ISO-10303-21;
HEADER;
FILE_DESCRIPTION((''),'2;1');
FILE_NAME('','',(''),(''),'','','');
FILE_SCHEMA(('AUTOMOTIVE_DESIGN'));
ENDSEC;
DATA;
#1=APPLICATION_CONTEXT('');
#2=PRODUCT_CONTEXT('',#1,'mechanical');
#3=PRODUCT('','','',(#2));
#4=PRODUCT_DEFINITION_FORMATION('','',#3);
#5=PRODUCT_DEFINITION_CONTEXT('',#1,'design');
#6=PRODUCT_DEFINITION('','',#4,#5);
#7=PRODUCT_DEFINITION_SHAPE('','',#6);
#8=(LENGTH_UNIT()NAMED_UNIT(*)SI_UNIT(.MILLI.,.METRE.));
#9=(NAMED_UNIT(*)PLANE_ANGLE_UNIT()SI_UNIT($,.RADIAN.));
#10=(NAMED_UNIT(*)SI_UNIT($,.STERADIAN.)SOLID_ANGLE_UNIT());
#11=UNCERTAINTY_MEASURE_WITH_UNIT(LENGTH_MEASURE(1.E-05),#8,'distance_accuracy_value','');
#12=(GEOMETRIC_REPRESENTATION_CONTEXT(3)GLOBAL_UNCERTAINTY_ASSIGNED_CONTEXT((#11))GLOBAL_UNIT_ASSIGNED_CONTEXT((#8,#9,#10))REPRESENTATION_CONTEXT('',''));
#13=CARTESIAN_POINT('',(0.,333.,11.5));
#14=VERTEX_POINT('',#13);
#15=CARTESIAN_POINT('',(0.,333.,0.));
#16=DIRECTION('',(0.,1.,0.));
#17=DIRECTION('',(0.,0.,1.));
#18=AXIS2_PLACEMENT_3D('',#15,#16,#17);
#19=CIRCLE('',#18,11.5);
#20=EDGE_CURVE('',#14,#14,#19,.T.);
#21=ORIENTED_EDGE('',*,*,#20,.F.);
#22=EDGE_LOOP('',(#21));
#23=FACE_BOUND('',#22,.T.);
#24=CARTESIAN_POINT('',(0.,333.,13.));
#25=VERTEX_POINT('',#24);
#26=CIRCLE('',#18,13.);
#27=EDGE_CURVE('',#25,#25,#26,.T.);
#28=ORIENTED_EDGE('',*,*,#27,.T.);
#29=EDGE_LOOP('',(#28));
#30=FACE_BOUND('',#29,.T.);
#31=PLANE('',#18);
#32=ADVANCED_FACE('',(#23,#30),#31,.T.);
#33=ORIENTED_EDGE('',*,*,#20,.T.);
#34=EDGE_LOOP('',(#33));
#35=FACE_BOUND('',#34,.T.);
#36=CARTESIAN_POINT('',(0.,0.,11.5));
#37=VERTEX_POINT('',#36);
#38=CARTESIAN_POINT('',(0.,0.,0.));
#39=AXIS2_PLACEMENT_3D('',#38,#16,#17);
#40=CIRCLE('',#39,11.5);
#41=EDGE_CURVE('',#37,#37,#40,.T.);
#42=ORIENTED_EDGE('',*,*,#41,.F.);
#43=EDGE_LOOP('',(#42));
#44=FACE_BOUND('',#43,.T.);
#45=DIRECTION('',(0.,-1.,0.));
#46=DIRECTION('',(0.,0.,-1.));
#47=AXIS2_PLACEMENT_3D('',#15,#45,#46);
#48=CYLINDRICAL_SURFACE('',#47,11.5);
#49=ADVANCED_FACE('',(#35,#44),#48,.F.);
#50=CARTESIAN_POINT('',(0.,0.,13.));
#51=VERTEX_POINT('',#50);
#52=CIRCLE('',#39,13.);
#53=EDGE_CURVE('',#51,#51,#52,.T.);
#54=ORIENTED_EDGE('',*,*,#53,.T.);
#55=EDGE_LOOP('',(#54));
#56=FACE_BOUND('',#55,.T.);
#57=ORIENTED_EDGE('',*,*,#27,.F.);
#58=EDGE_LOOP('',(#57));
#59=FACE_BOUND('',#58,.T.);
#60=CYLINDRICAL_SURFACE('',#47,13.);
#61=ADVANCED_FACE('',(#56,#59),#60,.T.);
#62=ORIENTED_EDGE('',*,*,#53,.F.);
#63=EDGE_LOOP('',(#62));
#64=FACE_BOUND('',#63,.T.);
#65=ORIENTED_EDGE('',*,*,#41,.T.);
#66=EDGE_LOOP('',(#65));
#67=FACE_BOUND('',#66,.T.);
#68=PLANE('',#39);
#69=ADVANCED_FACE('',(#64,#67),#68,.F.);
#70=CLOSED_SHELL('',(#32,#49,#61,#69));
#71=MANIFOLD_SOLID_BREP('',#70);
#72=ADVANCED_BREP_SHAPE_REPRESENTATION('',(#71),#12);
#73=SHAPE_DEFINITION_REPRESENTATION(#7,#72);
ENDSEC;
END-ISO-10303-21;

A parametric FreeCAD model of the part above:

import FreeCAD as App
import Part
import Sketcher
from FreeCAD import Vector

doc = App.newDocument("Part")
body = doc.addObject("PartDesign::Body", "Body")

# Sketch on XZ plane
sketch1 = body.newObject("Sketcher::SketchObject", "Sketch")
sketch1.AttachmentSupport = (doc.getObject("XZ_Plane"), [""])
sketch1.MapMode = "FlatFace"
sketch1.addGeometry([
    Part.Circle(Vector(0, 0, 0), Vector(0, 0, 1), 13),
    Part.Circle(Vector(0, 0, 0), Vector(0, 0, 1), 11.5),
], False)
sketch1.addConstraint([
    Sketcher.Constraint("Coincident", 0, 3, -1, 1),
    Sketcher.Constraint("Coincident", 1, 3, -1, 1),
    Sketcher.Constraint("Diameter", 0, 26.0),
    Sketcher.Constraint("Diameter", 1, 23.0),
])
pad1 = body.newObject("PartDesign::Pad", "Pad")
pad1.Profile = sketch1
pad1.Length = 333
pad1.Reversed = True

doc.recompute()
